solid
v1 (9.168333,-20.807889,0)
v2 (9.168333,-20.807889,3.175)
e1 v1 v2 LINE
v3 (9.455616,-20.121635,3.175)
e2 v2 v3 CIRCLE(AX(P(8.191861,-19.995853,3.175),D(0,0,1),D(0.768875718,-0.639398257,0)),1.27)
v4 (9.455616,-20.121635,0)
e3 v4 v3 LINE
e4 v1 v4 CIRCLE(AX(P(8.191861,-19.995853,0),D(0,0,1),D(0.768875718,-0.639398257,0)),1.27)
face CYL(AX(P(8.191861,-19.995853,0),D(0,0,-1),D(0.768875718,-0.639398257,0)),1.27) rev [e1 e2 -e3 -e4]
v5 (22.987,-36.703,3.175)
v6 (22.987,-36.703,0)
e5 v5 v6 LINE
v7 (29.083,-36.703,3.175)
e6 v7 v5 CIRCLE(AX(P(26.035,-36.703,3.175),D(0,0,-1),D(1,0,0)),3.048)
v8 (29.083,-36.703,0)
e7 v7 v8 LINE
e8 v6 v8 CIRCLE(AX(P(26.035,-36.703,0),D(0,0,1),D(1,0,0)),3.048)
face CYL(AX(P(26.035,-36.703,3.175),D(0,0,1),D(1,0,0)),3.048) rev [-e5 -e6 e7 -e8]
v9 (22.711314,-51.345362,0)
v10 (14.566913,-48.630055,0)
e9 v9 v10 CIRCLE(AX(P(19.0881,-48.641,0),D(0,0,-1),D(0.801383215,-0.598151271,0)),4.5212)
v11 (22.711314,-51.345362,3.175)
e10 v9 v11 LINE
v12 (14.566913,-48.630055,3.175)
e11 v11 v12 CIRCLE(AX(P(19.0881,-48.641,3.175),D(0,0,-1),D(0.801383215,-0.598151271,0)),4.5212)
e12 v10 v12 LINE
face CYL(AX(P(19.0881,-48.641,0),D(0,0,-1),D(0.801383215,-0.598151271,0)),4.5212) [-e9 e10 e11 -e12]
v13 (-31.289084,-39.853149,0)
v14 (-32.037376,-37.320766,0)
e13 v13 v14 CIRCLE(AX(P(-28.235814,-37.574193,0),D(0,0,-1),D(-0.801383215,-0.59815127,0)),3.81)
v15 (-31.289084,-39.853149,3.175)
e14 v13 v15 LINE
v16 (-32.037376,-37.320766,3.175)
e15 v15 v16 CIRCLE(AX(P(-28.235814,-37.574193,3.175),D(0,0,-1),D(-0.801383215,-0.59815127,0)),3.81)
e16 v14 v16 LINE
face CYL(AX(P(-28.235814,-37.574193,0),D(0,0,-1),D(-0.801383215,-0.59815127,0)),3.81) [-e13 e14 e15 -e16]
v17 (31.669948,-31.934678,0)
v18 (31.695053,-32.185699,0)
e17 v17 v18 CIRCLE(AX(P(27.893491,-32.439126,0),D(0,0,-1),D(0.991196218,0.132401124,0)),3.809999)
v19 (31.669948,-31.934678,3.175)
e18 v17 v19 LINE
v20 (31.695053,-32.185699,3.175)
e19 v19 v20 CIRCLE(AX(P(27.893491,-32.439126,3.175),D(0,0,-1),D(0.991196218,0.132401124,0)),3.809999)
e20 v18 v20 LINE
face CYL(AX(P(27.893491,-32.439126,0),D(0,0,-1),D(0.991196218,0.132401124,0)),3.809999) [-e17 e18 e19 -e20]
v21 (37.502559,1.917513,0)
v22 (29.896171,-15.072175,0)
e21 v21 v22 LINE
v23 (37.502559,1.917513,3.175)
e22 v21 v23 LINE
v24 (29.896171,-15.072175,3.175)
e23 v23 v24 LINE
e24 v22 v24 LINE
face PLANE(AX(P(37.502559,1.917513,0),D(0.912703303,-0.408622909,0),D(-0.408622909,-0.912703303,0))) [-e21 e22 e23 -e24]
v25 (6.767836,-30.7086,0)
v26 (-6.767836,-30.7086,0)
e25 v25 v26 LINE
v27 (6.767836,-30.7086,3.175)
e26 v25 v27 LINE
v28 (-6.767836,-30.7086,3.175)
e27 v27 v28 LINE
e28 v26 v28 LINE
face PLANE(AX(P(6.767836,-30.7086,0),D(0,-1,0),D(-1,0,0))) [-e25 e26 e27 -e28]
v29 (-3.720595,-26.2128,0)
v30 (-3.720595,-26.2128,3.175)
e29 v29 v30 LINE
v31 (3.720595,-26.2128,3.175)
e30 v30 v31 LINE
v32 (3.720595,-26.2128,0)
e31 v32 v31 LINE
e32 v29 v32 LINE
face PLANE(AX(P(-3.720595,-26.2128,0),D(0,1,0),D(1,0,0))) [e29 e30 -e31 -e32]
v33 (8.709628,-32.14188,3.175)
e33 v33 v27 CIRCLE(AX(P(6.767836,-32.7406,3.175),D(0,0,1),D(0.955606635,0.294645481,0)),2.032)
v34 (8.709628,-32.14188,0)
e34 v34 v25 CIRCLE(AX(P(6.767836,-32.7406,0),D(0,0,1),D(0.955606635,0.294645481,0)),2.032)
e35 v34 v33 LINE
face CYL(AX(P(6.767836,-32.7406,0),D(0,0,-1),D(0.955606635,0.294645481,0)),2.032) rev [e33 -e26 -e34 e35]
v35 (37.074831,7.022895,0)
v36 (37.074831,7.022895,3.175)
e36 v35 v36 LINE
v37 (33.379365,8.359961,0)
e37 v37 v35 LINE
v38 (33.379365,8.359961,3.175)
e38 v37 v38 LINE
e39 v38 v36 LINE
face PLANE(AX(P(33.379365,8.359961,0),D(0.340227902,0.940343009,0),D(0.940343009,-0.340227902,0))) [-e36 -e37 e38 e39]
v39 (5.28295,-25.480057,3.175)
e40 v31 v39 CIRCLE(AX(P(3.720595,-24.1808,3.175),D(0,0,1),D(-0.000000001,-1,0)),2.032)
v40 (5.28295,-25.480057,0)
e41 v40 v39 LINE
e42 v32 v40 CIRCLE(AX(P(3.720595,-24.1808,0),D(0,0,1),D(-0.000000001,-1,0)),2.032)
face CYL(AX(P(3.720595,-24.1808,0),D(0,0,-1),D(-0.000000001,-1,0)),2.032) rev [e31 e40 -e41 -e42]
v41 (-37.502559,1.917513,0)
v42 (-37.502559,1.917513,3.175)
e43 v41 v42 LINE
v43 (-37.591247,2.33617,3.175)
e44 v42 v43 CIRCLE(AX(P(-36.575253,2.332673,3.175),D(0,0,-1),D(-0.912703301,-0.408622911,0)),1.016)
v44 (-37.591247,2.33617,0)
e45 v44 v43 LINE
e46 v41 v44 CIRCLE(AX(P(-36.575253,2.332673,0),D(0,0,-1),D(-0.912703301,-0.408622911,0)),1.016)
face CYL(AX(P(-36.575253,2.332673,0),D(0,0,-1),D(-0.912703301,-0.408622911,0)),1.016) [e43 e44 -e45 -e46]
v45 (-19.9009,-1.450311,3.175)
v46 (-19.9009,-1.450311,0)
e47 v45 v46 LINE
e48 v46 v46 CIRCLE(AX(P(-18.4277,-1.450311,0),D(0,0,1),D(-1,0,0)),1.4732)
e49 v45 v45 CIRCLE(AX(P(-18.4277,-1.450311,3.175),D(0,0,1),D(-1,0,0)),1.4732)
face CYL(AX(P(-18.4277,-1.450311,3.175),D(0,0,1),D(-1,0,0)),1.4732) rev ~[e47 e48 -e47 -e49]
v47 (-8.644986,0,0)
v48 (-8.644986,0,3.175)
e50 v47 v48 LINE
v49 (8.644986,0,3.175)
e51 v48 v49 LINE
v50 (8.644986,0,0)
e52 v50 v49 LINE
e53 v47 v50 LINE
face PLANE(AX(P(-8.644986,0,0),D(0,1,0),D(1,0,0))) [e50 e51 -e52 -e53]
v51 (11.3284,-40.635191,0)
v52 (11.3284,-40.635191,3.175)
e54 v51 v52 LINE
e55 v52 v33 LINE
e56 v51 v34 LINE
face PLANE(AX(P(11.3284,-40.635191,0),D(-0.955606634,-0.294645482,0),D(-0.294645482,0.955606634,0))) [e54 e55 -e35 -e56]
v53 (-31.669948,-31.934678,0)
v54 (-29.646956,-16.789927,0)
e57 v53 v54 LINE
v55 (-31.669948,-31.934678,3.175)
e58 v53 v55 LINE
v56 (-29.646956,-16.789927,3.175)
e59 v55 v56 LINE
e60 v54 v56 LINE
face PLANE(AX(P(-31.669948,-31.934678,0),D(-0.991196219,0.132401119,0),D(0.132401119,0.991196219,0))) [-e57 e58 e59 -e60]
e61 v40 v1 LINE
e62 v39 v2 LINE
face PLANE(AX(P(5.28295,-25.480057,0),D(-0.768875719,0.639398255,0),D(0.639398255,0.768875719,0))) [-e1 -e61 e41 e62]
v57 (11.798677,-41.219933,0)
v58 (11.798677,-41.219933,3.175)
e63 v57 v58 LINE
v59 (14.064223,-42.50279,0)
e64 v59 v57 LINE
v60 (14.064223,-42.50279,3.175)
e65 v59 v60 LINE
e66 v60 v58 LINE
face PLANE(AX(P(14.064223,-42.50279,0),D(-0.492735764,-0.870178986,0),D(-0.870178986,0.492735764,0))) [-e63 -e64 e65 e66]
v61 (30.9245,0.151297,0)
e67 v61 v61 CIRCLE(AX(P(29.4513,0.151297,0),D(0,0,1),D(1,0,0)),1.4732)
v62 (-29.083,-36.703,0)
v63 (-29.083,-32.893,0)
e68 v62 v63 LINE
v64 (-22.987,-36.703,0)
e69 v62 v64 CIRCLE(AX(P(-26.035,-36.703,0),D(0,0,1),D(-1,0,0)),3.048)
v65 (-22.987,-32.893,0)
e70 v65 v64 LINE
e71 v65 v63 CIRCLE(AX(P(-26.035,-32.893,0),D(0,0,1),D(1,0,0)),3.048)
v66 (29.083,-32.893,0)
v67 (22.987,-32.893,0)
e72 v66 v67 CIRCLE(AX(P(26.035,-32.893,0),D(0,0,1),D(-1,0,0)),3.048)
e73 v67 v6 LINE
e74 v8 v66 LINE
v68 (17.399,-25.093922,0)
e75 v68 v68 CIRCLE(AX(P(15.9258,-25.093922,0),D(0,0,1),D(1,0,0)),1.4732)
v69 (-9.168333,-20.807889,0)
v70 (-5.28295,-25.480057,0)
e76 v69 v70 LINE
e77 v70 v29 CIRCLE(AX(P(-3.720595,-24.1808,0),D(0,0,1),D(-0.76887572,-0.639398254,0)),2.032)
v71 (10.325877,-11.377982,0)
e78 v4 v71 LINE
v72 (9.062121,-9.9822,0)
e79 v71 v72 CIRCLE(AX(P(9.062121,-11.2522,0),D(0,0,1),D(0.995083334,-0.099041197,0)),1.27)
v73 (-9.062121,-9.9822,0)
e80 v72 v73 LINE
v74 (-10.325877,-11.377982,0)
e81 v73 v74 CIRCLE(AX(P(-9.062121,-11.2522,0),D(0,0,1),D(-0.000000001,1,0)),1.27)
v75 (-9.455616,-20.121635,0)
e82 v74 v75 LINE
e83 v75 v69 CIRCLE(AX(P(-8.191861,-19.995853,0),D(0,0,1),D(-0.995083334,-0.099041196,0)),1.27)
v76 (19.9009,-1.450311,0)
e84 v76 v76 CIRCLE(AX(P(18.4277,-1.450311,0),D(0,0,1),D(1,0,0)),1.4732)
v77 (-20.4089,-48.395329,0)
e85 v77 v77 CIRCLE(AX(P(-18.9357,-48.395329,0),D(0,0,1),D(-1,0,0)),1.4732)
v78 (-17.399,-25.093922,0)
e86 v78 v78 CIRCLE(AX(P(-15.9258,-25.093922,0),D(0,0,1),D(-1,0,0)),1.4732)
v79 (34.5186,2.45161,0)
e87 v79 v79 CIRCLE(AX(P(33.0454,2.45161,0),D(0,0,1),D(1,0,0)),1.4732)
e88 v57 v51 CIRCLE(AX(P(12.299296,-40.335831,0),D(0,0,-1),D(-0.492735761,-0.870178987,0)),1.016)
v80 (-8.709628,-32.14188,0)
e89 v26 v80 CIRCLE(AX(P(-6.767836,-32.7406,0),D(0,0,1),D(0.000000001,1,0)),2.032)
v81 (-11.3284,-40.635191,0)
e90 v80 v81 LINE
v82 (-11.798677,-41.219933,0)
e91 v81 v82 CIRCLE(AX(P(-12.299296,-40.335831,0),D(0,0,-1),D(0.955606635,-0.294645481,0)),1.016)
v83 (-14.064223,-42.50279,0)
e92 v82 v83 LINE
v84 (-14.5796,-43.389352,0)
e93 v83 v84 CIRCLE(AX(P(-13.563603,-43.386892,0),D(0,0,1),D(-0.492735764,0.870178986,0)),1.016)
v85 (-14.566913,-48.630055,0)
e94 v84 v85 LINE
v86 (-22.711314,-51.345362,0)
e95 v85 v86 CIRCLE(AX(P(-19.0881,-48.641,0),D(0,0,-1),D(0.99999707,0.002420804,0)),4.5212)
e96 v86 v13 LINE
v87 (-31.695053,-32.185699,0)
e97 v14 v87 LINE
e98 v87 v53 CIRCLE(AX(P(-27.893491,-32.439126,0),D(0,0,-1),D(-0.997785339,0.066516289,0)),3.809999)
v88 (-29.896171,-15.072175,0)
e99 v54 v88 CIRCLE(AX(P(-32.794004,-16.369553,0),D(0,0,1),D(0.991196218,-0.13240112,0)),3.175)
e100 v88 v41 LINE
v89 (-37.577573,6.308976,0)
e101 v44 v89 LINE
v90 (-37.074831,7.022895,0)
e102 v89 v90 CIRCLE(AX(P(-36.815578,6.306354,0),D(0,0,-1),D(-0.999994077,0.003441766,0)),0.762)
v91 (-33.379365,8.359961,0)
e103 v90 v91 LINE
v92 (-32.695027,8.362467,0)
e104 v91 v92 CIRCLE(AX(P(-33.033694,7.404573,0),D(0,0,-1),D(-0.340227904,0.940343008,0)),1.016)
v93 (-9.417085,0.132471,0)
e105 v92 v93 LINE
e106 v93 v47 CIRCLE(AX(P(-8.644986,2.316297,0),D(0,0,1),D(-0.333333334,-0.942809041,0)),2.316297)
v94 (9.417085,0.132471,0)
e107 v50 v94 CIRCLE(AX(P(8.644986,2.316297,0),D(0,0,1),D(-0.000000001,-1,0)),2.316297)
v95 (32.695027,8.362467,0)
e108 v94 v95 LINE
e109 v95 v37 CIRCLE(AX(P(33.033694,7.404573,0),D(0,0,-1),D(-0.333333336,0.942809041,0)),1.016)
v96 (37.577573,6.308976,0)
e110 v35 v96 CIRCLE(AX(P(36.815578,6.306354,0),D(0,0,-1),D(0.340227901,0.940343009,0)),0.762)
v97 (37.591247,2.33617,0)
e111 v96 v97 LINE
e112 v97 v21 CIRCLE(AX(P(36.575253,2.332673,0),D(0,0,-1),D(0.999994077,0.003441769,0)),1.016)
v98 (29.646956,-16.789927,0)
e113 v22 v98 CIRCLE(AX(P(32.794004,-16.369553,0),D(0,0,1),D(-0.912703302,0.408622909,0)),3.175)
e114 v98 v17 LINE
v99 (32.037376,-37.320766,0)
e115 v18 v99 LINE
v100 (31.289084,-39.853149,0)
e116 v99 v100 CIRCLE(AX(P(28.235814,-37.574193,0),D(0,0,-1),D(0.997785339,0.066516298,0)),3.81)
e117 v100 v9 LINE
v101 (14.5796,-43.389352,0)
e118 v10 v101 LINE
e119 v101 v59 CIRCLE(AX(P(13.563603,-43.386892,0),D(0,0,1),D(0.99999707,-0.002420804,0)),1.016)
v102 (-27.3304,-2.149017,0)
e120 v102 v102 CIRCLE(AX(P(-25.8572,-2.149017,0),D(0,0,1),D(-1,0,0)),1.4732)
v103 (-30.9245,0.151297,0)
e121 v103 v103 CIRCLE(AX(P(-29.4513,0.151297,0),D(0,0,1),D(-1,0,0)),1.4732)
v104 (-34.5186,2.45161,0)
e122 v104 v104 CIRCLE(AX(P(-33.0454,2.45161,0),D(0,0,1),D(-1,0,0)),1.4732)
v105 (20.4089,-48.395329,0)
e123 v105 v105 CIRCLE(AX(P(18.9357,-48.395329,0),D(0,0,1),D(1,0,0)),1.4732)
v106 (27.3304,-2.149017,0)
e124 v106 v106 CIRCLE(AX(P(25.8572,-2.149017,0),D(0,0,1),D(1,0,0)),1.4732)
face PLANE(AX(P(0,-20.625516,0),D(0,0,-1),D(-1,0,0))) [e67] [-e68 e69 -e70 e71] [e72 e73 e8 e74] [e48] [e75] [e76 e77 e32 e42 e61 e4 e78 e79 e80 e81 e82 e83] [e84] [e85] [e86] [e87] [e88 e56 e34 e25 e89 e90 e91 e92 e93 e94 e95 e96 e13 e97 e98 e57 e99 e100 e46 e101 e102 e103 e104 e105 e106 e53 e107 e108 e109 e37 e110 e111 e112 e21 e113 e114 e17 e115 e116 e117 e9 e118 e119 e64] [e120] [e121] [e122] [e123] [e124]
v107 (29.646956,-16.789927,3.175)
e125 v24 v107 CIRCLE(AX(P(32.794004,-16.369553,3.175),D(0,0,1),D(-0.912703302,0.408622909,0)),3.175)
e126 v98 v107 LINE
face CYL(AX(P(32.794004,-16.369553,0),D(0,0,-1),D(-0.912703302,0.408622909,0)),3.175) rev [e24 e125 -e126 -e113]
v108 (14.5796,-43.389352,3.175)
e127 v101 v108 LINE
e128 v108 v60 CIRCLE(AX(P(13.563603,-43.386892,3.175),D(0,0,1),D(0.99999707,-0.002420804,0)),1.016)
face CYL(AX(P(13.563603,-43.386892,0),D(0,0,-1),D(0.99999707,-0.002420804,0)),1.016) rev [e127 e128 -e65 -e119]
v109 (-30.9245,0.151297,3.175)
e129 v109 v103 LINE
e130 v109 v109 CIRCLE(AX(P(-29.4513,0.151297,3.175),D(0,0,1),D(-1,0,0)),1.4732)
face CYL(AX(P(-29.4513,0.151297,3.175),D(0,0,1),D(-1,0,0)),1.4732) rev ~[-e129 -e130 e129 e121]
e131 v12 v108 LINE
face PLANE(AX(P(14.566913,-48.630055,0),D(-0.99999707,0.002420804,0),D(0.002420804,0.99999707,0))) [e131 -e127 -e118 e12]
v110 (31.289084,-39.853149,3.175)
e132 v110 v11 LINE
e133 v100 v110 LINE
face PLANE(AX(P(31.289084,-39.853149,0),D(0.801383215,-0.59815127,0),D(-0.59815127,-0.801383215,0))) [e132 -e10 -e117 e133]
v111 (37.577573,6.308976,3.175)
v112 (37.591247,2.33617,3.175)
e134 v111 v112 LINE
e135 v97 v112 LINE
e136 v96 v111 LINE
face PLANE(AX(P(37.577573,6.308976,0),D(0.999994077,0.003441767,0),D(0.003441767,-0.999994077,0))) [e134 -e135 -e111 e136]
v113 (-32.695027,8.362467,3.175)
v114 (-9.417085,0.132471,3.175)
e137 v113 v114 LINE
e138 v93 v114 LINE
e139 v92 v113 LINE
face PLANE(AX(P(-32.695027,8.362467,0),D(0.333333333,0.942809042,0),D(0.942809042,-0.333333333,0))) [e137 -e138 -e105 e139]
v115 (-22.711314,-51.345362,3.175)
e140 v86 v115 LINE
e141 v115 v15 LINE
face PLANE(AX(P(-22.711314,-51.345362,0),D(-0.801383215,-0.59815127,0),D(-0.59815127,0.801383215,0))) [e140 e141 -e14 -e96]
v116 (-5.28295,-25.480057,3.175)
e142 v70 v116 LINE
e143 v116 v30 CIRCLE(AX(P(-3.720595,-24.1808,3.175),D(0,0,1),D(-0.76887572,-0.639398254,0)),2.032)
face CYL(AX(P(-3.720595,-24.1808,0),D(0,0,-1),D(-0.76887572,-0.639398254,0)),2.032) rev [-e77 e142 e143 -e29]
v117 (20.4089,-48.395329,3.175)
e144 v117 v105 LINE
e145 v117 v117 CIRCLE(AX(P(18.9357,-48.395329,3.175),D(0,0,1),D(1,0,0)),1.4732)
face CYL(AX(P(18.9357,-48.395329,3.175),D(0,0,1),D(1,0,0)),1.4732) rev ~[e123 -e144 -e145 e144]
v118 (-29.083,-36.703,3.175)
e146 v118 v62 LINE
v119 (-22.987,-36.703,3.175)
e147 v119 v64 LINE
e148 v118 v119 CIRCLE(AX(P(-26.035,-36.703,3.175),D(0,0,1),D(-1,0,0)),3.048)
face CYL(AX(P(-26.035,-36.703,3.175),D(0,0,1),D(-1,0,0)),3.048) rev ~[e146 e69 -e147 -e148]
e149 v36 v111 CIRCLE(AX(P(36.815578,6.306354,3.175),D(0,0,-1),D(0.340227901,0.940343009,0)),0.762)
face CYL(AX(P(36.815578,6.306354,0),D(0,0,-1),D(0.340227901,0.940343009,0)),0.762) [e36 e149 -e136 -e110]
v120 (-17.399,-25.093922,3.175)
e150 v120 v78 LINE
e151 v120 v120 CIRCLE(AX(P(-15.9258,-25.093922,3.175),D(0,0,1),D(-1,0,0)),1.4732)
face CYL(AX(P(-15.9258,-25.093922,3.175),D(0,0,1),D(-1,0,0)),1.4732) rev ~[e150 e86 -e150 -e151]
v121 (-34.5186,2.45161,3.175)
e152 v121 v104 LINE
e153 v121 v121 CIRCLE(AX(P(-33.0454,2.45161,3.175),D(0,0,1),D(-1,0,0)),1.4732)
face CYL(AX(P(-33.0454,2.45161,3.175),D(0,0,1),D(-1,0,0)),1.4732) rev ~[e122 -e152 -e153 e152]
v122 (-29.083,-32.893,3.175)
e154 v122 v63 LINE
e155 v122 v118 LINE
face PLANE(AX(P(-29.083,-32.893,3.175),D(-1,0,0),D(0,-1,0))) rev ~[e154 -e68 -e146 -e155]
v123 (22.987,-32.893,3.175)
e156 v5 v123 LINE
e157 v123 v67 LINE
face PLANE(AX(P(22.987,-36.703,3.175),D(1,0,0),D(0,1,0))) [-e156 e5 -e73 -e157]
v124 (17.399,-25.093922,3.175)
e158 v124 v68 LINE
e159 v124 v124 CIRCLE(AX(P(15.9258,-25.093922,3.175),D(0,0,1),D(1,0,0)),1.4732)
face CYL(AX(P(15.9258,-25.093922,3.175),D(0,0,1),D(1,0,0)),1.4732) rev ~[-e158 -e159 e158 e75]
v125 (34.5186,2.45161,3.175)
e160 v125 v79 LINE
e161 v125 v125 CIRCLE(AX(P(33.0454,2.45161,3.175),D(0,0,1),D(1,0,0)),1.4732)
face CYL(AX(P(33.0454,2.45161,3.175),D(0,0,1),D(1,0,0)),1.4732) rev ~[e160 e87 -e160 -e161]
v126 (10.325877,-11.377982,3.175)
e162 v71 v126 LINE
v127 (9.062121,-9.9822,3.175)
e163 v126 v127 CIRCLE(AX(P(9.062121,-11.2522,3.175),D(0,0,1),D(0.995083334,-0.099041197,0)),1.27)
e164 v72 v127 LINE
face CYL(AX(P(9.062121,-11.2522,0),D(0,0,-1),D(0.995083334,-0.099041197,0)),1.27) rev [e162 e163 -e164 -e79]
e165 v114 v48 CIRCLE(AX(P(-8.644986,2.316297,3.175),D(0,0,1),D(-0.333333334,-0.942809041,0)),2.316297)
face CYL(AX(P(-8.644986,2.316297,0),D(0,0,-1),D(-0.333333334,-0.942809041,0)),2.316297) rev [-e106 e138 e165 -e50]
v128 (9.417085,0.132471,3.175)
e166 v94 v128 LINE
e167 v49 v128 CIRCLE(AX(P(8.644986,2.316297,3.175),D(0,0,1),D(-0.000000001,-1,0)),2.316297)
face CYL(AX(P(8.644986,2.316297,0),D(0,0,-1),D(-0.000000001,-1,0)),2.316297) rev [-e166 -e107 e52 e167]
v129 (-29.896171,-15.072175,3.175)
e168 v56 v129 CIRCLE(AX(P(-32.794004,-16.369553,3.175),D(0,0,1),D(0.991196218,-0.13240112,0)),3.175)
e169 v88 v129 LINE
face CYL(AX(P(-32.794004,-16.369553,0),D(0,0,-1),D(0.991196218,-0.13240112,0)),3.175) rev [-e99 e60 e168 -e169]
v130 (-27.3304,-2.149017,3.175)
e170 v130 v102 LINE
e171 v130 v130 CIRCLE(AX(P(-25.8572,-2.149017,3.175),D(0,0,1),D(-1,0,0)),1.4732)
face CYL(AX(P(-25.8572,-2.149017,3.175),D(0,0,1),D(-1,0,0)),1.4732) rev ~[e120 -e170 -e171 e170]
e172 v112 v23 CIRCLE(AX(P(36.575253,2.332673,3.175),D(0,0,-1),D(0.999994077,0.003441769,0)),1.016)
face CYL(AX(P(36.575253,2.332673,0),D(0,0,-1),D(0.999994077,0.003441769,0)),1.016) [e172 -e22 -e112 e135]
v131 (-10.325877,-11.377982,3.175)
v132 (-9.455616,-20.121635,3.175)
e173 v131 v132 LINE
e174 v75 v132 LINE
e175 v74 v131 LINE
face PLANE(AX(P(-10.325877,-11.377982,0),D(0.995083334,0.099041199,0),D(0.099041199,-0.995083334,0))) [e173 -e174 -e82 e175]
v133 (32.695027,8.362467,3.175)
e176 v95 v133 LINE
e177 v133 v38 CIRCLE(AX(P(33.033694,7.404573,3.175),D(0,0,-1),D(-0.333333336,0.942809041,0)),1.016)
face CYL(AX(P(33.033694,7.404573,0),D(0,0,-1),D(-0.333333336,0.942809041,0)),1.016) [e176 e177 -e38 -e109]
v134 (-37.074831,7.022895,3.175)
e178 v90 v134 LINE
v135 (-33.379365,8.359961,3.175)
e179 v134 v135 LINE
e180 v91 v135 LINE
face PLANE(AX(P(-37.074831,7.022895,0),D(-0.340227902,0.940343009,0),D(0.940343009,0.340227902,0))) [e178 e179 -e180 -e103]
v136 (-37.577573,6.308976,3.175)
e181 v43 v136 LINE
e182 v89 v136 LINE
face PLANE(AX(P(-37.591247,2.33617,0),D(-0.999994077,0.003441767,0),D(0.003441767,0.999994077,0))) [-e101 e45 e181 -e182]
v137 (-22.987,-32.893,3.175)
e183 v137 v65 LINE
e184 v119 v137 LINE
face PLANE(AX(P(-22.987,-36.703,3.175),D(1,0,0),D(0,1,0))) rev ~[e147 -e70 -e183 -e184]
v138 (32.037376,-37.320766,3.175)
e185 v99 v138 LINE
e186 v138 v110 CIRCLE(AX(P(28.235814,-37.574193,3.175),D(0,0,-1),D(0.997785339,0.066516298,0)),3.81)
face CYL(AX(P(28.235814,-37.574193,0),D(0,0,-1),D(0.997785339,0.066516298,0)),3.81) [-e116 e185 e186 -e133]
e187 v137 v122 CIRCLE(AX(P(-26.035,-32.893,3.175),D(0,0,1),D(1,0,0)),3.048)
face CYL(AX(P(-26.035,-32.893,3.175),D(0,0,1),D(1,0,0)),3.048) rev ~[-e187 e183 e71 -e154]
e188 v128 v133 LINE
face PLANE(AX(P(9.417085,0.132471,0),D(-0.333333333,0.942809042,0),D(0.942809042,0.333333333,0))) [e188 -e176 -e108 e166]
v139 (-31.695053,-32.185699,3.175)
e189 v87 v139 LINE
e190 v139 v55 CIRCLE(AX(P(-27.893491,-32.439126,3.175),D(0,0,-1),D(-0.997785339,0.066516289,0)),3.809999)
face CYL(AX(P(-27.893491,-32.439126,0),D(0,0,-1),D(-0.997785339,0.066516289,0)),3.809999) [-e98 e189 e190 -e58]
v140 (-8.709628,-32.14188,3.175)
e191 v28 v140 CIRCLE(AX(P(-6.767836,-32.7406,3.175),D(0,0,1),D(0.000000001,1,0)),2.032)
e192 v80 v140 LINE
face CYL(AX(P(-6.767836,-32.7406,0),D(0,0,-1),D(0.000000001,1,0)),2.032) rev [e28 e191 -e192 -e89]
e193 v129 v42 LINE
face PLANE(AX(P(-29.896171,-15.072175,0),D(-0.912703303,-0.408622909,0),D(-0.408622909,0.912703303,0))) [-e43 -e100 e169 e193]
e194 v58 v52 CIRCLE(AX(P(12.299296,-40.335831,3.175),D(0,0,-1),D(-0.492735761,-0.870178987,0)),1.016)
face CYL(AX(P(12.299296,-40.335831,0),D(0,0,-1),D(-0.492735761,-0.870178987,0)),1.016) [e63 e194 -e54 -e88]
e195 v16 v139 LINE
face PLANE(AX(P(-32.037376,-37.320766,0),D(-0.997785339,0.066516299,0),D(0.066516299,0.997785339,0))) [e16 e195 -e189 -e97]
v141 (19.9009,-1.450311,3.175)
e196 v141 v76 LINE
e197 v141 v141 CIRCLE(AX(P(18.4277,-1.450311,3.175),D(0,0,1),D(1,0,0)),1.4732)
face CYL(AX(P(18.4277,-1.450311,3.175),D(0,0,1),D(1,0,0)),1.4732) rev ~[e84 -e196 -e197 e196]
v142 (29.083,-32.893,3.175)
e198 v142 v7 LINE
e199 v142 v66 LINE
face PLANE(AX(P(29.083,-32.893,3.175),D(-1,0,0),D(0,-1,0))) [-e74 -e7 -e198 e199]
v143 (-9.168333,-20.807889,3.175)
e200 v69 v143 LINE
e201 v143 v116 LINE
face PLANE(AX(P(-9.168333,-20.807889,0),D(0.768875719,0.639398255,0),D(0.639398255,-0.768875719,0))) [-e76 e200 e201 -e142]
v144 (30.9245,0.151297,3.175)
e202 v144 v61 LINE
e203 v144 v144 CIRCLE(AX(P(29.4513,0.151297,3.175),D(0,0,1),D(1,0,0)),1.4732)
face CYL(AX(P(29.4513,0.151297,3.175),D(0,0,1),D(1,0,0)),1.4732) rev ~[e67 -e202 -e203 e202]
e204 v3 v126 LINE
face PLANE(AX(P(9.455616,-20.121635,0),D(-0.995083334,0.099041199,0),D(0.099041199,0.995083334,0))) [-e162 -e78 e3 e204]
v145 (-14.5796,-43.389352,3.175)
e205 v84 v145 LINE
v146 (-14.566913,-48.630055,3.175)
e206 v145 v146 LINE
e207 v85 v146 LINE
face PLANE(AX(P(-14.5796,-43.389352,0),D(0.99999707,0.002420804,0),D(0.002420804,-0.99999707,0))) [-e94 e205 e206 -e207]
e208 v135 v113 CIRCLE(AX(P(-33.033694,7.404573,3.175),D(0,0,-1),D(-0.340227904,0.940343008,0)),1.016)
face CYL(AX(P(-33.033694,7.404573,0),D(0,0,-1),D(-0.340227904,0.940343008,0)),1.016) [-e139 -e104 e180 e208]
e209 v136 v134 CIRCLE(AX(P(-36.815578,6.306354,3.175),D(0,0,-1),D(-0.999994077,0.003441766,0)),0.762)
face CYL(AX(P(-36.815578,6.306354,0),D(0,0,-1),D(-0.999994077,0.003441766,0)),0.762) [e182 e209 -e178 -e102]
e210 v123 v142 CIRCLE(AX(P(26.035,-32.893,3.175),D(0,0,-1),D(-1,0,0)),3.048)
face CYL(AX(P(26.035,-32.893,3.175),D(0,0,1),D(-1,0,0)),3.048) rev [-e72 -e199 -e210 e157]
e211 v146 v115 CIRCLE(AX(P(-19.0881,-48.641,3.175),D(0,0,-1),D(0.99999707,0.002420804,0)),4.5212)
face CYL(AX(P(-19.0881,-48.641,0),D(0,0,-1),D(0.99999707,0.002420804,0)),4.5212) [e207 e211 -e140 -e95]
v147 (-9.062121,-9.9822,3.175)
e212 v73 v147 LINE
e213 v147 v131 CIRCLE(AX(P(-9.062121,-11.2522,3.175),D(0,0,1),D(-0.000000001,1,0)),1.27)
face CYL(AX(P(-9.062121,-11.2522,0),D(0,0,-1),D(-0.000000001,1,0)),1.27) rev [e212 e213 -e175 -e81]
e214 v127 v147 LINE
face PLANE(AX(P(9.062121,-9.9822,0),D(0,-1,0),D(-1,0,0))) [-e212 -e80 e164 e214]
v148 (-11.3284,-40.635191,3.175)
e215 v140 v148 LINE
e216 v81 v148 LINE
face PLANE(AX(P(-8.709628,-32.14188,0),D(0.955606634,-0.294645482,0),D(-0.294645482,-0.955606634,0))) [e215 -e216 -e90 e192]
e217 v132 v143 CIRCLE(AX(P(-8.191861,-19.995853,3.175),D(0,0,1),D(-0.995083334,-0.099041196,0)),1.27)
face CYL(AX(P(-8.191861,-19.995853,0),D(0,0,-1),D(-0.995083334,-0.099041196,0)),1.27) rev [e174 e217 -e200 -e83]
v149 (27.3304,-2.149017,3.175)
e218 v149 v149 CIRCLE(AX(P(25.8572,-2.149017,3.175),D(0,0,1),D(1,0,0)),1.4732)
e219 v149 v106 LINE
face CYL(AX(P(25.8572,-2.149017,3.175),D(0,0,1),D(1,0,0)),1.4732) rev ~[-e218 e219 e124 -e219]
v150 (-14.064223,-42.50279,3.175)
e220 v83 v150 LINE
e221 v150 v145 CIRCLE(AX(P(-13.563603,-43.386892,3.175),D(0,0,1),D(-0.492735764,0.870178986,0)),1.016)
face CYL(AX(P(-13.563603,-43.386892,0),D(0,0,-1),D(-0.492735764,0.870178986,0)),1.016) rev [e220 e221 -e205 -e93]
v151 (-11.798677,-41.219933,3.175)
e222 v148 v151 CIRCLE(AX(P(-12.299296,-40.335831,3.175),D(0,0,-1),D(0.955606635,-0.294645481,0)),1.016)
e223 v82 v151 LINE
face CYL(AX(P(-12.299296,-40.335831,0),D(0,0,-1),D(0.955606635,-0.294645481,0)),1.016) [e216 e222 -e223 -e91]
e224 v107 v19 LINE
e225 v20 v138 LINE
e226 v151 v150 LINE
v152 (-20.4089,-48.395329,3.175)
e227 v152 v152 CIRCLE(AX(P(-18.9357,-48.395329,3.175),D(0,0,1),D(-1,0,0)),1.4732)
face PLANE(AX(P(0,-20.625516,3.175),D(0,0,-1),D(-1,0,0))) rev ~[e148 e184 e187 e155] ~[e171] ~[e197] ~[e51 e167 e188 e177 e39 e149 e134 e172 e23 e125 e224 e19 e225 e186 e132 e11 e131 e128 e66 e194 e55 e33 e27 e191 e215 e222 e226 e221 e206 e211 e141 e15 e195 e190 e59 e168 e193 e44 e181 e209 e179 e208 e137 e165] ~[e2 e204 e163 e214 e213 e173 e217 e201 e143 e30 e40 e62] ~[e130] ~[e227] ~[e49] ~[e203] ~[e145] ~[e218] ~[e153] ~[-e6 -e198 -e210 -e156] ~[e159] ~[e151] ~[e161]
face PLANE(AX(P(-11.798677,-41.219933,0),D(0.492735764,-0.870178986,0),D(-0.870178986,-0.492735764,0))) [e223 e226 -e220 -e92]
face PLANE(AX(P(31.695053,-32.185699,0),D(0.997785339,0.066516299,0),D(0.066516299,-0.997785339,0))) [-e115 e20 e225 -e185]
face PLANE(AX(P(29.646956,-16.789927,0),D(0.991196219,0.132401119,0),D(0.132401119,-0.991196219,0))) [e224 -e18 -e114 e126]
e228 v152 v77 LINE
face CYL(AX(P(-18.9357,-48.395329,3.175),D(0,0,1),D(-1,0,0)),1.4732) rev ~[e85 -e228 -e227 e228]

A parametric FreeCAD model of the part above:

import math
import FreeCAD as App
import Part
import Sketcher
from FreeCAD import Vector
Q = App.Units.Quantity

doc = App.newDocument("Part")
body = doc.addObject("PartDesign::Body", "Body")

sketch1 = body.newObject("Sketcher::SketchObject", "Sketch")
sketch1.AttachmentSupport = (doc.getObject("XY_Plane"), [""])
sketch1.MapMode = "FlatFace"
sketch1.addGeometry([
    Part.LineSegment(Vector(8.644986, 0, 0), Vector(-8.644986, 0, 0)),
    Part.ArcOfCircle(Part.Circle(Vector(-8.644986, 2.316297, 0), Vector(0, 0, 1), 2.316297), math.radians(-109.471221), math.radians(-90)),
    Part.LineSegment(Vector(-9.417085, 0.132471, 0), Vector(-32.695027, 8.362467, 0)),
    Part.ArcOfCircle(Part.Circle(Vector(-33.033694, 7.404573, 0), Vector(0, 0, 1), 1.016), math.radians(70.528779), math.radians(109.89076)),
    Part.LineSegment(Vector(-33.379365, 8.359961, 0), Vector(-37.074831, 7.022895, 0)),
    Part.ArcOfCircle(Part.Circle(Vector(-36.815578, 6.306354, 0), Vector(0, 0, 1), 0.762), math.radians(109.89076), math.radians(179.802801)),
    Part.LineSegment(Vector(-37.577573, 6.308976, 0), Vector(-37.591247, 2.33617, 0)),
    Part.ArcOfCircle(Part.Circle(Vector(-36.575253, 2.332673, 0), Vector(0, 0, 1), 1.016), math.radians(179.802801), math.radians(204.118358)),
    Part.LineSegment(Vector(-37.502559, 1.917513, 0), Vector(-29.896171, -15.072175, 0)),
    Part.ArcOfCircle(Part.Circle(Vector(-32.794004, -16.369553, 0), Vector(0, 0, 1), 3.175), math.radians(-7.608366), math.radians(24.118357)),
    Part.LineSegment(Vector(-29.646956, -16.789927, 0), Vector(-31.669948, -31.934678, 0)),
    Part.ArcOfCircle(Part.Circle(Vector(-27.893491, -32.439126, 0), Vector(0, 0, 1), 3.809999), math.radians(172.391634), math.radians(176.186081)),
    Part.LineSegment(Vector(-31.695053, -32.185699, 0), Vector(-32.037376, -37.320766, 0)),
    Part.ArcOfCircle(Part.Circle(Vector(-28.235814, -37.574193, 0), Vector(0, 0, 1), 3.81), math.radians(176.186081), math.radians(216.737607)),
    Part.LineSegment(Vector(-31.289084, -39.853149, 0), Vector(-22.711314, -51.345362, 0)),
    Part.ArcOfCircle(Part.Circle(Vector(-19.0881, -48.641, 0), Vector(0, 0, 1), 4.5212), math.radians(-143.262393), math.radians(0.138702)),
    Part.LineSegment(Vector(-14.566913, -48.630055, 0), Vector(-14.5796, -43.389352, 0)),
    Part.ArcOfCircle(Part.Circle(Vector(-13.563603, -43.386892, 0), Vector(0, 0, 1), 1.016), math.radians(119.520555), math.radians(180.138702)),
    Part.LineSegment(Vector(-14.064223, -42.50279, 0), Vector(-11.798677, -41.219933, 0)),
    Part.ArcOfCircle(Part.Circle(Vector(-12.299296, -40.335831, 0), Vector(0, 0, 1), 1.016), math.radians(-60.479446), math.radians(-17.13628)),
    Part.LineSegment(Vector(-11.3284, -40.635191, 0), Vector(-8.709628, -32.14188, 0)),
    Part.ArcOfCircle(Part.Circle(Vector(-6.767836, -32.7406, 0), Vector(0, 0, 1), 2.032), math.radians(90), math.radians(162.86372)),
    Part.LineSegment(Vector(-6.767836, -30.7086, 0), Vector(6.767836, -30.7086, 0)),
    Part.ArcOfCircle(Part.Circle(Vector(6.767836, -32.7406, 0), Vector(0, 0, 1), 2.032), math.radians(17.13628), math.radians(90)),
    Part.LineSegment(Vector(8.709628, -32.14188, 0), Vector(11.3284, -40.635191, 0)),
    Part.ArcOfCircle(Part.Circle(Vector(12.299296, -40.335831, 0), Vector(0, 0, 1), 1.016), math.radians(-162.86372), math.radians(-119.520554)),
    Part.LineSegment(Vector(11.798677, -41.219933, 0), Vector(14.064223, -42.50279, 0)),
    Part.ArcOfCircle(Part.Circle(Vector(13.563603, -43.386892, 0), Vector(0, 0, 1), 1.016), math.radians(-0.138702), math.radians(60.479445)),
    Part.LineSegment(Vector(14.5796, -43.389352, 0), Vector(14.566913, -48.630055, 0)),
    Part.ArcOfCircle(Part.Circle(Vector(19.0881, -48.641, 0), Vector(0, 0, 1), 4.5212), math.radians(179.861298), math.radians(323.262393)),
    Part.LineSegment(Vector(22.711314, -51.345362, 0), Vector(31.289084, -39.853149, 0)),
    Part.ArcOfCircle(Part.Circle(Vector(28.235814, -37.574193, 0), Vector(0, 0, 1), 3.81), math.radians(-36.737607), math.radians(3.813919)),
    Part.LineSegment(Vector(32.037376, -37.320766, 0), Vector(31.695053, -32.185699, 0)),
    Part.ArcOfCircle(Part.Circle(Vector(27.893491, -32.439126, 0), Vector(0, 0, 1), 3.809999), math.radians(3.813919), math.radians(7.608366)),
    Part.LineSegment(Vector(31.669948, -31.934678, 0), Vector(29.646956, -16.789927, 0)),
    Part.ArcOfCircle(Part.Circle(Vector(32.794004, -16.369553, 0), Vector(0, 0, 1), 3.175), math.radians(155.881643), math.radians(187.608366)),
    Part.LineSegment(Vector(29.896171, -15.072175, 0), Vector(37.502559, 1.917513, 0)),
    Part.ArcOfCircle(Part.Circle(Vector(36.575253, 2.332673, 0), Vector(0, 0, 1), 1.016), math.radians(-24.118358), math.radians(0.197199)),
    Part.LineSegment(Vector(37.591247, 2.33617, 0), Vector(37.577573, 6.308976, 0)),
    Part.ArcOfCircle(Part.Circle(Vector(36.815578, 6.306354, 0), Vector(0, 0, 1), 0.762), math.radians(0.197199), math.radians(70.10924)),
    Part.LineSegment(Vector(37.074831, 7.022895, 0), Vector(33.379365, 8.359961, 0)),
    Part.ArcOfCircle(Part.Circle(Vector(33.033694, 7.404573, 0), Vector(0, 0, 1), 1.016), math.radians(70.10924), math.radians(109.471221)),
    Part.LineSegment(Vector(32.695027, 8.362467, 0), Vector(9.417085, 0.132471, 0)),
    Part.ArcOfCircle(Part.Circle(Vector(8.644986, 2.316297, 0), Vector(0, 0, 1), 2.316297), math.radians(-90), math.radians(-70.528779)),
    Part.ArcOfCircle(Part.Circle(Vector(-3.720595, -24.1808, 0), Vector(0, 0, 1), 2.032), math.radians(-140.253037), math.radians(-90)),
    Part.LineSegment(Vector(-5.28295, -25.480057, 0), Vector(-9.168333, -20.807889, 0)),
    Part.ArcOfCircle(Part.Circle(Vector(-8.191861, -19.995853, 0), Vector(0, 0, 1), 1.27), math.radians(-174.316039), math.radians(-140.253036)),
    Part.LineSegment(Vector(-9.455616, -20.121635, 0), Vector(-10.325877, -11.377982, 0)),
    Part.ArcOfCircle(Part.Circle(Vector(-9.062121, -11.2522, 0), Vector(0, 0, 1), 1.27), math.radians(90), math.radians(185.683961)),
    Part.LineSegment(Vector(-9.062121, -9.9822, 0), Vector(9.062121, -9.9822, 0)),
    Part.ArcOfCircle(Part.Circle(Vector(9.062121, -11.2522, 0), Vector(0, 0, 1), 1.27), math.radians(-5.683961), math.radians(90)),
    Part.LineSegment(Vector(10.325877, -11.377982, 0), Vector(9.455616, -20.121635, 0)),
    Part.ArcOfCircle(Part.Circle(Vector(8.191861, -19.995853, 0), Vector(0, 0, 1), 1.27), math.radians(-39.746964), math.radians(-5.683961)),
    Part.LineSegment(Vector(9.168333, -20.807889, 0), Vector(5.28295, -25.480057, 0)),
    Part.ArcOfCircle(Part.Circle(Vector(3.720595, -24.1808, 0), Vector(0, 0, 1), 2.032), math.radians(-90), math.radians(-39.746963)),
    Part.LineSegment(Vector(3.720595, -26.2128, 0), Vector(-3.720595, -26.2128, 0)),
], False)
sketch1.addConstraint([
    Sketcher.Constraint("Coincident", 0, 2, 1, 2),
    Sketcher.Constraint("Coincident", 1, 1, 2, 1),
    Sketcher.Constraint("Coincident", 2, 2, 3, 1),
    Sketcher.Constraint("Coincident", 3, 2, 4, 1),
    Sketcher.Constraint("Coincident", 4, 2, 5, 1),
    Sketcher.Constraint("Coincident", 5, 2, 6, 1),
    Sketcher.Constraint("Coincident", 6, 2, 7, 1),
    Sketcher.Constraint("Coincident", 7, 2, 8, 1),
    Sketcher.Constraint("Coincident", 8, 2, 9, 2),
    Sketcher.Constraint("Coincident", 9, 1, 10, 1),
    Sketcher.Constraint("Coincident", 10, 2, 11, 1),
    Sketcher.Constraint("Coincident", 11, 2, 12, 1),
    Sketcher.Constraint("Coincident", 12, 2, 13, 1),
    Sketcher.Constraint("Coincident", 13, 2, 14, 1),
    Sketcher.Constraint("Coincident", 14, 2, 15, 1),
    Sketcher.Constraint("Coincident", 15, 2, 16, 1),
    Sketcher.Constraint("Coincident", 16, 2, 17, 2),
    Sketcher.Constraint("Coincident", 17, 1, 18, 1),
    Sketcher.Constraint("Coincident", 18, 2, 19, 1),
    Sketcher.Constraint("Coincident", 19, 2, 20, 1),
    Sketcher.Constraint("Coincident", 20, 2, 21, 2),
    Sketcher.Constraint("Coincident", 21, 1, 22, 1),
    Sketcher.Constraint("Coincident", 22, 2, 23, 2),
    Sketcher.Constraint("Coincident", 23, 1, 24, 1),
    Sketcher.Constraint("Coincident", 24, 2, 25, 1),
    Sketcher.Constraint("Coincident", 25, 2, 26, 1),
    Sketcher.Constraint("Coincident", 26, 2, 27, 2),
    Sketcher.Constraint("Coincident", 27, 1, 28, 1),
    Sketcher.Constraint("Coincident", 28, 2, 29, 1),
    Sketcher.Constraint("Coincident", 29, 2, 30, 1),
    Sketcher.Constraint("Coincident", 30, 2, 31, 1),
    Sketcher.Constraint("Coincident", 31, 2, 32, 1),
    Sketcher.Constraint("Coincident", 32, 2, 33, 1),
    Sketcher.Constraint("Coincident", 33, 2, 34, 1),
    Sketcher.Constraint("Coincident", 34, 2, 35, 2),
    Sketcher.Constraint("Coincident", 35, 1, 36, 1),
    Sketcher.Constraint("Coincident", 36, 2, 37, 1),
    Sketcher.Constraint("Coincident", 37, 2, 38, 1),
    Sketcher.Constraint("Coincident", 38, 2, 39, 1),
    Sketcher.Constraint("Coincident", 39, 2, 40, 1),
    Sketcher.Constraint("Coincident", 40, 2, 41, 1),
    Sketcher.Constraint("Coincident", 41, 2, 42, 1),
    Sketcher.Constraint("Coincident", 42, 2, 43, 2),
    Sketcher.Constraint("Coincident", 43, 1, 0, 1),
    Sketcher.Constraint("Coincident", 44, 1, 45, 1),
    Sketcher.Constraint("Coincident", 45, 2, 46, 2),
    Sketcher.Constraint("Coincident", 46, 1, 47, 1),
    Sketcher.Constraint("Coincident", 47, 2, 48, 2),
    Sketcher.Constraint("Coincident", 48, 1, 49, 1),
    Sketcher.Constraint("Coincident", 49, 2, 50, 2),
    Sketcher.Constraint("Coincident", 50, 1, 51, 1),
    Sketcher.Constraint("Coincident", 51, 2, 52, 2),
    Sketcher.Constraint("Coincident", 52, 1, 53, 1),
    Sketcher.Constraint("Coincident", 53, 2, 54, 2),
    Sketcher.Constraint("Coincident", 54, 1, 55, 1),
    Sketcher.Constraint("Coincident", 55, 2, 44, 2),
    Sketcher.Constraint("Horizontal", 0),
    Sketcher.Constraint("Horizontal", 22),
    Sketcher.Constraint("Horizontal", 49),
    Sketcher.Constraint("Horizontal", 55),
    Sketcher.Constraint("PointOnObject", 0, 2, -1),
    Sketcher.Constraint("Radius", 3, Q("0.04 in")),
    Sketcher.Constraint("Radius", 5, Q("0.03 in")),
    Sketcher.Constraint("Radius", 7, Q("0.04 in")),
    Sketcher.Constraint("Radius", 11, Q("0.15 in")),
    Sketcher.Constraint("Radius", 13, Q("0.15 in")),
    Sketcher.Constraint("Radius", 17, Q("0.04 in")),
    Sketcher.Constraint("Radius", 19, Q("0.04 in")),
    Sketcher.Constraint("Radius", 21, Q("0.08 in")),
    Sketcher.Constraint("Radius", 23, Q("0.08 in")),
    Sketcher.Constraint("Radius", 25, Q("0.04 in")),
    Sketcher.Constraint("Radius", 27, Q("0.04 in")),
    Sketcher.Constraint("Radius", 31, Q("0.15 in")),
    Sketcher.Constraint("Radius", 33, Q("0.15 in")),
    Sketcher.Constraint("Radius", 37, Q("0.04 in")),
    Sketcher.Constraint("Radius", 39, Q("0.03 in")),
    Sketcher.Constraint("Radius", 41, Q("0.04 in")),
    Sketcher.Constraint("Radius", 44, Q("0.08 in")),
    Sketcher.Constraint("Radius", 46, Q("0.05 in")),
    Sketcher.Constraint("Radius", 48, Q("0.05 in")),
    Sketcher.Constraint("Radius", 50, Q("0.05 in")),
    Sketcher.Constraint("Radius", 52, Q("0.05 in")),
    Sketcher.Constraint("Radius", 54, Q("0.08 in")),
    Sketcher.Constraint("Radius", 9, Q("0.125 in")),
    Sketcher.Constraint("Radius", 15, Q("0.178 in")),
    Sketcher.Constraint("Radius", 29, Q("0.178 in")),
    Sketcher.Constraint("Radius", 35, Q("0.125 in")),
    Sketcher.Constraint("DistanceY", 15, 3, -1, 1, Q("1.915 in")),
    Sketcher.Constraint("DistanceX", 17, 3, -1, 1, Q("0.5340001 in")),
    Sketcher.Constraint("DistanceY", 21, 3, -1, 1, Q("1.289 in")),
    Sketcher.Constraint("DistanceX", -1, 1, 27, 3, Q("0.5340001 in")),
    Sketcher.Constraint("DistanceY", 29, 3, -1, 1, Q("1.915 in")),
    Sketcher.Constraint("DistanceY", 44, 3, -1, 1, Q("0.952 in")),
    Sketcher.Constraint("DistanceY", 48, 3, -1, 1, Q("0.443 in")),
    Sketcher.Constraint("DistanceX", 19, 2, -1, 1, Q("0.446 in")),
    Sketcher.Constraint("DistanceX", -1, 1, 24, 2, Q("0.446 in")),
    Sketcher.Constraint("DistanceX", 15, 3, -1, 1, Q("0.7515 in")),
    Sketcher.Constraint("DistanceX", -1, 1, 29, 3, Q("0.7515 in")),
    Sketcher.Constraint("Radius", 1, Q("2.316297 mm")),
    Sketcher.Constraint("Radius", 43, Q("2.316297 mm")),
    Sketcher.Constraint("DistanceX", 22, 1, 22, 2, Q("13.535671 mm")),
    Sketcher.Constraint("DistanceX", 55, 2, 55, 1, Q("7.441189 mm")),
    Sketcher.Constraint("DistanceY", 11, 2, -1, 1, Q("32.185699 mm")),
    Sketcher.Constraint("DistanceY", 32, 2, -1, 1, Q("32.185699 mm")),
    Sketcher.Constraint("Distance", 6, Q("3.97283 mm")),
    Sketcher.Constraint("Distance", 8, Q("18.614689 mm")),
    Sketcher.Constraint("Distance", 14, Q("14.34047 mm")),
    Sketcher.Constraint("Distance", 16, Q("5.240719 mm")),
    Sketcher.Constraint("Distance", 18, Q("2.60354 mm")),
    Sketcher.Constraint("Distance", 26, Q("2.60354 mm")),
    Sketcher.Constraint("Distance", 28, Q("5.240719 mm")),
    Sketcher.Constraint("Distance", 30, Q("14.34047 mm")),
    Sketcher.Constraint("Distance", 36, Q("18.614689 mm")),
    Sketcher.Constraint("Distance", 38, Q("3.97283 mm")),
    Sketcher.Constraint("DistanceX", 0, 2, 0, 1, Q("17.289973 mm")),
    Sketcher.Constraint("DistanceX", 49, 1, 49, 2, Q("18.124242 mm")),
    Sketcher.Constraint("DistanceX", 11, 3, -1, 1, Q("27.893491 mm")),
    Sketcher.Constraint("DistanceY", 19, 3, -1, 1, Q("40.335831 mm")),
    Sketcher.Constraint("DistanceY", 25, 3, -1, 1, Q("40.335831 mm")),
    Sketcher.Constraint("DistanceX", -1, 1, 33, 3, Q("27.893491 mm")),
    Sketcher.Constraint("DistanceX", 46, 3, -1, 1, Q("8.191861 mm")),
    Sketcher.Constraint("DistanceX", 48, 3, -1, 1, Q("9.062121 mm")),
    Sketcher.Constraint("DistanceX", -1, 1, 50, 3, Q("9.062121 mm")),
    Sketcher.Constraint("DistanceX", -1, 1, 52, 3, Q("8.191861 mm")),
    Sketcher.Constraint("DistanceY", -1, 1, 1, 1, Q("0.132471 mm")),
    Sketcher.Constraint("DistanceY", -1, 1, 3, 2, Q("8.359961 mm")),
    Sketcher.Constraint("DistanceX", 4, 2, -1, 1, Q("37.074831 mm")),
    Sketcher.Constraint("DistanceY", -1, 1, 6, 2, Q("2.33617 mm")),
    Sketcher.Constraint("DistanceX", 7, 2, -1, 1, Q("37.502559 mm")),
    Sketcher.Constraint("DistanceX", 8, 2, -1, 1, Q("29.896171 mm")),
    Sketcher.Constraint("DistanceX", 10, 2, -1, 1, Q("31.669948 mm")),
    Sketcher.Constraint("DistanceY", 10, 2, -1, 1, Q("31.934678 mm")),
    Sketcher.Constraint("DistanceY", 13, 2, -1, 1, Q("39.853149 mm")),
    Sketcher.Constraint("DistanceY", 14, 2, -1, 1, Q("51.345362 mm")),
    Sketcher.Constraint("DistanceY", 16, 2, -1, 1, Q("43.389352 mm")),
    Sketcher.Constraint("DistanceY", 17, 1, -1, 1, Q("42.50279 mm")),
    Sketcher.Constraint("DistanceY", 19, 2, -1, 1, Q("40.635191 mm")),
    Sketcher.Constraint("DistanceX", 20, 2, -1, 1, Q("8.709628 mm")),
    Sketcher.Constraint("DistanceY", 20, 2, -1, 1, Q("32.14188 mm")),
    Sketcher.Constraint("DistanceX", -1, 1, 23, 1, Q("8.709628 mm")),
    Sketcher.Constraint("DistanceY", 23, 1, -1, 1, Q("32.14188 mm")),
    Sketcher.Constraint("DistanceY", 24, 2, -1, 1, Q("40.635191 mm")),
    Sketcher.Constraint("DistanceY", 26, 2, -1, 1, Q("42.50279 mm")),
    Sketcher.Constraint("DistanceY", 27, 1, -1, 1, Q("43.389352 mm")),
    Sketcher.Constraint("DistanceY", 29, 2, -1, 1, Q("51.345362 mm")),
    Sketcher.Constraint("DistanceY", 30, 2, -1, 1, Q("39.853149 mm")),
    Sketcher.Constraint("DistanceX", -1, 1, 33, 2, Q("31.669948 mm")),
    Sketcher.Constraint("DistanceY", 33, 2, -1, 1, Q("31.934678 mm")),
    Sketcher.Constraint("DistanceX", -1, 1, 35, 1, Q("29.896171 mm")),
    Sketcher.Constraint("DistanceX", -1, 1, 36, 2, Q("37.502559 mm")),
    Sketcher.Constraint("DistanceY", -1, 1, 37, 2, Q("2.33617 mm")),
    Sketcher.Constraint("DistanceX", -1, 1, 39, 2, Q("37.074831 mm")),
    Sketcher.Constraint("DistanceY", -1, 1, 40, 2, Q("8.359961 mm")),
    Sketcher.Constraint("DistanceY", -1, 1, 42, 2, Q("0.132471 mm")),
    Sketcher.Constraint("DistanceX", 44, 1, -1, 1, Q("5.28295 mm")),
    Sketcher.Constraint("DistanceY", 45, 2, -1, 1, Q("20.807889 mm")),
    Sketcher.Constraint("DistanceX", 48, 1, -1, 1, Q("9.062121 mm")),
    Sketcher.Constraint("DistanceY", 52, 1, -1, 1, Q("20.807889 mm")),
    Sketcher.Constraint("DistanceX", -1, 1, 53, 2, Q("5.28295 mm")),
    Sketcher.Constraint("Distance", 2, Q("24.689986 mm")),
    Sketcher.Constraint("Distance", 4, Q("3.929913 mm")),
    Sketcher.Constraint("Distance", 10, Q("15.279267 mm")),
    Sketcher.Constraint("Distance", 12, Q("5.146464 mm")),
    Sketcher.Constraint("Distance", 32, Q("5.146464 mm")),
    Sketcher.Constraint("Distance", 34, Q("15.279267 mm")),
    Sketcher.Constraint("Distance", 40, Q("3.929913 mm")),
    Sketcher.Constraint("Distance", 42, Q("24.689986 mm")),
    Sketcher.Constraint("Distance", 45, Q("6.076624 mm")),
    Sketcher.Constraint("Distance", 47, Q("8.786855 mm")),
    Sketcher.Constraint("Distance", 51, Q("8.786855 mm")),
    Sketcher.Constraint("Distance", 53, Q("6.076624 mm")),
    Sketcher.Constraint("DistanceX", 1, 3, -1, 1, Q("8.644986 mm")),
    Sketcher.Constraint("DistanceX", 3, 3, -1, 1, Q("33.033694 mm")),
    Sketcher.Constraint("DistanceY", -1, 1, 3, 3, Q("7.404573 mm")),
    Sketcher.Constraint("DistanceX", 5, 3, -1, 1, Q("36.815578 mm")),
    Sketcher.Constraint("DistanceX", 7, 3, -1, 1, Q("36.575253 mm")),
    Sketcher.Constraint("DistanceY", -1, 1, 7, 3, Q("2.332673 mm")),
    Sketcher.Constraint("DistanceX", 9, 3, -1, 1, Q("32.794004 mm")),
    Sketcher.Constraint("DistanceX", 13, 3, -1, 1, Q("28.235814 mm")),
    Sketcher.Constraint("DistanceY", 17, 3, -1, 1, Q("43.386892 mm")),
    Sketcher.Constraint("DistanceY", 27, 3, -1, 1, Q("43.386892 mm")),
    Sketcher.Constraint("DistanceX", -1, 1, 31, 3, Q("28.235814 mm")),
    Sketcher.Constraint("DistanceX", -1, 1, 35, 3, Q("32.794004 mm")),
    Sketcher.Constraint("DistanceY", 35, 3, -1, 1, Q("16.369553 mm")),
    Sketcher.Constraint("DistanceX", -1, 1, 37, 3, Q("36.575253 mm")),
    Sketcher.Constraint("DistanceX", -1, 1, 39, 3, Q("36.815578 mm")),
    Sketcher.Constraint("DistanceY", -1, 1, 39, 3, Q("6.306354 mm")),
    Sketcher.Constraint("DistanceX", -1, 1, 41, 3, Q("33.033694 mm")),
    Sketcher.Constraint("DistanceX", -1, 1, 43, 3, Q("8.644986 mm")),
    Sketcher.Constraint("DistanceX", 44, 3, -1, 1, Q("3.720595 mm")),
    Sketcher.Constraint("DistanceY", 52, 3, -1, 1, Q("19.995853 mm")),
    Sketcher.Constraint("DistanceX", 0, 2, -1, 1, Q("8.644986 mm")),
    Sketcher.Constraint("DistanceX", 21, 1, -1, 1, Q("6.767836 mm")),
    Sketcher.Constraint("DistanceX", 46, 1, -1, 1, Q("9.455616 mm")),
    Sketcher.Constraint("DistanceX", -1, 1, 50, 1, Q("10.325877 mm")),
    Sketcher.Constraint("DistanceX", -1, 1, 54, 1, Q("3.720595 mm")),
])
pad1 = body.newObject("PartDesign::Pad", "Pad")
pad1.Profile = sketch1
pad1.Length = Q("0.125 in")

sketch2 = body.newObject("Sketcher::SketchObject", "Sketch001")
sketch2.AttachmentSupport = (doc.getObject("XY_Plane"), [""])
sketch2.MapMode = "FlatFace"
sketch2.AttachmentOffset = App.Placement(Vector(0, 0, 0.125 * 25.4), App.Rotation())
sketch2.addGeometry([
    Part.Circle(Vector(33.0454, 2.45161, 0), Vector(0, 0, 1), 1.4732),
    Part.Circle(Vector(29.4513, 0.151297, 0), Vector(0, 0, 1), 1.4732),
    Part.Circle(Vector(25.8572, -2.149017, 0), Vector(0, 0, 1), 1.4732),
    Part.Circle(Vector(18.4277, -1.450311, 0), Vector(0, 0, 1), 1.4732),
    Part.Circle(Vector(15.9258, -25.093922, 0), Vector(0, 0, 1), 1.4732),
    Part.Circle(Vector(18.9357, -48.395329, 0), Vector(0, 0, 1), 1.4732),
    Part.Circle(Vector(-18.9357, -48.395329, 0), Vector(0, 0, 1), 1.4732),
    Part.Circle(Vector(-15.9258, -25.093922, 0), Vector(0, 0, 1), 1.4732),
    Part.Circle(Vector(-18.4277, -1.450311, 0), Vector(0, 0, 1), 1.4732),
    Part.Circle(Vector(-25.8572, -2.149017, 0), Vector(0, 0, 1), 1.4732),
    Part.Circle(Vector(-29.4513, 0.151297, 0), Vector(0, 0, 1), 1.4732),
    Part.Circle(Vector(-33.0454, 2.45161, 0), Vector(0, 0, 1), 1.4732),
    Part.LineSegment(Vector(29.083, -36.703, 0), Vector(29.083, -32.893, 0)),
    Part.ArcOfCircle(Part.Circle(Vector(26.035, -32.893, 0), Vector(0, 0, 1), 3.048), math.radians(0), math.radians(180)),
    Part.LineSegment(Vector(22.987, -32.893, 0), Vector(22.987, -36.703, 0)),
    Part.ArcOfCircle(Part.Circle(Vector(26.035, -36.703, 0), Vector(0, 0, 1), 3.048), math.radians(180), math.radians(360)),
    Part.LineSegment(Vector(-29.083, -32.893, 0), Vector(-29.083, -36.703, 0)),
    Part.ArcOfCircle(Part.Circle(Vector(-26.035, -36.703, 0), Vector(0, 0, 1), 3.048), math.radians(180), math.radians(360)),
    Part.LineSegment(Vector(-22.987, -36.703, 0), Vector(-22.987, -32.893, 0)),
    Part.ArcOfCircle(Part.Circle(Vector(-26.035, -32.893, 0), Vector(0, 0, 1), 3.048), math.radians(0), math.radians(180)),
], False)
sketch2.addConstraint([
    Sketcher.Constraint("Tangent", 12, 2, 13, 1),
    Sketcher.Constraint("Tangent", 13, 2, 14, 1),
    Sketcher.Constraint("Tangent", 14, 2, 15, 1),
    Sketcher.Constraint("Tangent", 15, 2, 12, 1),
    Sketcher.Constraint("Tangent", 16, 2, 17, 1),
    Sketcher.Constraint("Tangent", 17, 2, 18, 1),
    Sketcher.Constraint("Tangent", 18, 2, 19, 1),
    Sketcher.Constraint("Tangent", 19, 2, 16, 1),
    Sketcher.Constraint("Vertical", 12),
    Sketcher.Constraint("Vertical", 14),
    Sketcher.Constraint("Vertical", 16),
    Sketcher.Constraint("Vertical", 18),
    Sketcher.Constraint("Equal", 0, 1),
    Sketcher.Constraint("Equal", 1, 2),
    Sketcher.Constraint("Equal", 2, 3),
    Sketcher.Constraint("Equal", 3, 4),
    Sketcher.Constraint("Equal", 4, 5),
    Sketcher.Constraint("Equal", 5, 6),
    Sketcher.Constraint("Equal", 6, 7),
    Sketcher.Constraint("Equal", 7, 8),
    Sketcher.Constraint("Equal", 8, 9),
    Sketcher.Constraint("Equal", 9, 10),
    Sketcher.Constraint("Equal", 10, 11),
    Sketcher.Constraint("Equal", 15, 17),
    Sketcher.Constraint("Symmetric", 5, 3, 6, 3, -2),
    Sketcher.Constraint("Symmetric", 4, 3, 7, 3, -2),
    Sketcher.Constraint("Symmetric", 3, 3, 8, 3, -2),
    Sketcher.Constraint("Symmetric", 2, 3, 9, 3, -2),
    Sketcher.Constraint("Symmetric", 1, 3, 10, 3, -2),
    Sketcher.Constraint("Symmetric", 0, 3, 11, 3, -2),
    Sketcher.Constraint("Symmetric", 15, 3, 17, 3, -2),
    Sketcher.Constraint("Horizontal", 13, 3, 19, 3),
    Sketcher.Constraint("Radius", 13, Q("0.12 in")),
    Sketcher.Constraint("Diameter", 0, Q("0.116 in")),
    Sketcher.Constraint("DistanceY", 12, 1, 12, 2, Q("0.15 in")),
    Sketcher.Constraint("DistanceX", 3, 3, 5, 3, Q("0.02 in")),
    Sketcher.Constraint("DistanceX", -1, 1, 0, 3, Q("1.301 in")),
    Sketcher.Constraint("DistanceX", -1, 1, 2, 3, Q("1.018 in")),
    Sketcher.Constraint("DistanceX", -1, 1, 4, 3, Q("0.627 in")),
    Sketcher.Constraint("DistanceX", -1, 1, 13, 3, Q("1.025 in")),
    Sketcher.Constraint("DistanceY", 13, 3, -1, 1, Q("1.295 in")),
    Sketcher.Constraint("DistanceX", 3, 3, 1, 3, Q("0.434 in")),
    Sketcher.Constraint("DistanceX", 6, 3, 5, 3, Q("1.491 in")),
    Sketcher.Constraint("DistanceY", -1, 1, 0, 3, Q("2.45161 mm")),
    Sketcher.Constraint("DistanceY", 3, 3, -1, 1, Q("1.450311 mm")),
    Sketcher.Constraint("DistanceY", 5, 3, -1, 1, Q("48.395329 mm")),
    Sketcher.Constraint("DistanceY", 3, 3, 1, 3, Q("1.601608 mm")),
    Sketcher.Constraint("DistanceY", 4, 3, 3, 3, Q("23.643611 mm")),
    Sketcher.Constraint("DistanceY", 5, 3, 2, 3, Q("46.246312 mm")),
])
pocket1 = body.newObject("PartDesign::Pocket", "Pocket")
pocket1.Profile = sketch2
pocket1.Type = "ThroughAll"

doc.recompute()
